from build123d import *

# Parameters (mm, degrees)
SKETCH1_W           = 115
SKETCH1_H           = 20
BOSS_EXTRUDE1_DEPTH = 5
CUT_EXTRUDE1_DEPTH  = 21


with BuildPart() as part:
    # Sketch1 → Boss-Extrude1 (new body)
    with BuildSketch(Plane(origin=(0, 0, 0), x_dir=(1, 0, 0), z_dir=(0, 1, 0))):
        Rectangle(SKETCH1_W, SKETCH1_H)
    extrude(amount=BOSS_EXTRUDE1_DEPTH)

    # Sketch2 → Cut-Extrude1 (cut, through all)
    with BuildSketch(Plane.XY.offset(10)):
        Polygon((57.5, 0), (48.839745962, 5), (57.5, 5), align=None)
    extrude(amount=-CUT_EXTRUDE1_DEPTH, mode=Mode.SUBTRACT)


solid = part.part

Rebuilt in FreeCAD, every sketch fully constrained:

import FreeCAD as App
import Part
import Sketcher

V = App.Vector
Q = App.Units.Quantity


def add_polygon(sketch, points):
    """Adds a closed chain of lines whose ends are joined by coincident constraints."""
    first, n = sketch.GeometryCount, len(points)
    for a, b in zip(points, points[1:] + points[:1]):
        sketch.addGeometry(Part.LineSegment(App.Vector(*a, 0), App.Vector(*b, 0)), False)
    for i in range(n):
        sketch.addConstraint(Sketcher.Constraint("Coincident", first + i, 2, first + (i + 1) % n, 1))

doc = App.newDocument("Part")
body = doc.addObject("PartDesign::Body", "Body")

# Sketch on XZ plane
sketch1 = body.newObject("Sketcher::SketchObject", "Sketch")
sketch1.AttachmentSupport = (doc.getObject("XZ_Plane"), [""])
sketch1.MapMode = "FlatFace"
add_polygon(sketch1, [(-57.5, -10), (-57.5, 10), (57.5, 10), (57.5, -10)])  # lines 0-3
sketch1.addConstraint([
    Sketcher.Constraint("Vertical", 0),
    Sketcher.Constraint("Horizontal", 1),
    Sketcher.Constraint("Vertical", 2),
    Sketcher.Constraint("Horizontal", 3),
    Sketcher.Constraint("Symmetric", 0, 2, 2, 2, -1, 1),
    Sketcher.Constraint("DistanceX", 1, 1, 1, 2, Q("115 mm")),
    Sketcher.Constraint("DistanceY", 0, 1, 0, 2, Q("20 mm")),
])
pad1 = body.newObject("PartDesign::Pad", "Pad")
pad1.Profile = sketch1
pad1.Length = 5
pad1.Reversed = True

# Sketch on XY plane
sketch2 = body.newObject("Sketcher::SketchObject", "Sketch001")
sketch2.AttachmentSupport = (doc.getObject("XY_Plane"), [""])
sketch2.MapMode = "FlatFace"
sketch2.AttachmentOffset = App.Placement(V(0, 0, 10), App.Rotation())
add_polygon(sketch2, [(48.839746, 5), (57.5, 0), (57.5, 5)])  # lines 0-2
sketch2.addConstraint([
    Sketcher.Constraint("Vertical", 1),
    Sketcher.Constraint("Horizontal", 2),
    Sketcher.Constraint("PointOnObject", 0, 2, -1),
    Sketcher.Constraint("DistanceY", 1, 1, 1, 2, Q("5 mm")),
    Sketcher.Constraint("Angle", 0, Q("-30 deg")),
    Sketcher.Constraint("DistanceX", -1, 1, 0, 2, Q("57.5 mm")),
])
pocket1 = body.newObject("PartDesign::Pocket", "Pocket")
pocket1.Profile = sketch2
pocket1.Type = "ThroughAll"

doc.recompute()
